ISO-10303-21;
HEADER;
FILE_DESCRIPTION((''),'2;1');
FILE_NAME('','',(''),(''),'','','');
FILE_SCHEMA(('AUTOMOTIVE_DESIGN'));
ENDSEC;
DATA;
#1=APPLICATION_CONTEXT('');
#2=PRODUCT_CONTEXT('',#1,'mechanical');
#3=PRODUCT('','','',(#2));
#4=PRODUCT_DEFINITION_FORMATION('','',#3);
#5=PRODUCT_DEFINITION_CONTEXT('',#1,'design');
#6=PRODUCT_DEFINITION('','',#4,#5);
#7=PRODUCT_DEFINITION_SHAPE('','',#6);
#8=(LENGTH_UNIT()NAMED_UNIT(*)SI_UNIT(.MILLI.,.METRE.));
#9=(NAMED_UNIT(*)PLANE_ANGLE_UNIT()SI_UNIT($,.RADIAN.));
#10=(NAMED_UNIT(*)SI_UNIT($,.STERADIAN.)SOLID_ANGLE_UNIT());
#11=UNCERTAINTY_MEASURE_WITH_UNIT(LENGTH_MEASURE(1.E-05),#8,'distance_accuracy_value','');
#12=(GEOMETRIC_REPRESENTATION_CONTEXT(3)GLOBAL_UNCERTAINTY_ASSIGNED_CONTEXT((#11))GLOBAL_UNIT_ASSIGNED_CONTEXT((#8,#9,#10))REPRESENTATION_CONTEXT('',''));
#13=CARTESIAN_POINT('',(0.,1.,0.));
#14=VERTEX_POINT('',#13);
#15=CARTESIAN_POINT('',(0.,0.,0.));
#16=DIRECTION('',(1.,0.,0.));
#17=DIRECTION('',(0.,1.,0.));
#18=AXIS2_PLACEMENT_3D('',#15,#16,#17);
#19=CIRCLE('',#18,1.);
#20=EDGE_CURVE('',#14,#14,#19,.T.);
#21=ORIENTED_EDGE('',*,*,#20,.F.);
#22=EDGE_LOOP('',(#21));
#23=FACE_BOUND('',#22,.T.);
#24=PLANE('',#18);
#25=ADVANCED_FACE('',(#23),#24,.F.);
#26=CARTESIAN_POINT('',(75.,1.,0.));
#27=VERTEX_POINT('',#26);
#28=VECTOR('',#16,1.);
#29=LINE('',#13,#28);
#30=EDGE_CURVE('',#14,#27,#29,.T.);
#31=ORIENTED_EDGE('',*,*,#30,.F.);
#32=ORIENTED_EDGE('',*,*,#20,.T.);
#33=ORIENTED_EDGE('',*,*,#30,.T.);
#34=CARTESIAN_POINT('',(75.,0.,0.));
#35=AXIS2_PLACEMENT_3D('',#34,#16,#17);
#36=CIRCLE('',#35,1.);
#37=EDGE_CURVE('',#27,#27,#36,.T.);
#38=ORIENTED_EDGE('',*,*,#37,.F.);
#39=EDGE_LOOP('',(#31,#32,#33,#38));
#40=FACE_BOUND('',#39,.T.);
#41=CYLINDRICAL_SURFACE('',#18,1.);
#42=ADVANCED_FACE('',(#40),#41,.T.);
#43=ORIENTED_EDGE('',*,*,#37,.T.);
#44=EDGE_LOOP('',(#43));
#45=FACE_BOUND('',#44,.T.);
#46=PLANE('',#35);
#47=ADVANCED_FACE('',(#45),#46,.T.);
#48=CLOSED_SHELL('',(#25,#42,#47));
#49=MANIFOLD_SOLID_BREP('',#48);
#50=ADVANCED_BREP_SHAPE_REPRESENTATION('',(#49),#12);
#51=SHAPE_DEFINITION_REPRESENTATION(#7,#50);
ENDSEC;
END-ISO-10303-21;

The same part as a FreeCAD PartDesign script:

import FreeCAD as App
import Part
import Sketcher

V = App.Vector
Q = App.Units.Quantity

doc = App.newDocument("Part")
body = doc.addObject("PartDesign::Body", "Body")

sketch1 = body.newObject("Sketcher::SketchObject", "Sketch")
sketch1.AttachmentSupport = (doc.getObject("XY_Plane"), [""])
sketch1.MapMode = "FlatFace"
sketch1.addGeometry([
    Part.LineSegment(V(0, 1, 0), V(0, 0, 0)),
    Part.LineSegment(V(0, 0, 0), V(75, 0, 0)),
    Part.LineSegment(V(75, 0, 0), V(75, 1, 0)),
    Part.LineSegment(V(75, 1, 0), V(0, 1, 0)),
], False)
sketch1.addConstraint([
    Sketcher.Constraint("Coincident", 0, 2, 1, 1),
    Sketcher.Constraint("Coincident", 1, 2, 2, 1),
    Sketcher.Constraint("Coincident", 2, 2, 3, 1),
    Sketcher.Constraint("Coincident", 3, 2, 0, 1),
    Sketcher.Constraint("Vertical", 0),
    Sketcher.Constraint("Horizontal", 1),
    Sketcher.Constraint("Vertical", 2),
    Sketcher.Constraint("Horizontal", 3),
    Sketcher.Constraint("Coincident", 0, 2, -1, 1),
    Sketcher.Constraint("DistanceX", 1, 1, 1, 2, Q("75 mm")),
    Sketcher.Constraint("DistanceY", 0, 2, 0, 1, Q("1 mm")),
])
revolution = body.newObject("PartDesign::Revolution", "Revolution")
revolution.Profile = sketch1
revolution.ReferenceAxis = (sketch1, ["H_Axis"])
revolution.Angle = 360

doc.recompute()
